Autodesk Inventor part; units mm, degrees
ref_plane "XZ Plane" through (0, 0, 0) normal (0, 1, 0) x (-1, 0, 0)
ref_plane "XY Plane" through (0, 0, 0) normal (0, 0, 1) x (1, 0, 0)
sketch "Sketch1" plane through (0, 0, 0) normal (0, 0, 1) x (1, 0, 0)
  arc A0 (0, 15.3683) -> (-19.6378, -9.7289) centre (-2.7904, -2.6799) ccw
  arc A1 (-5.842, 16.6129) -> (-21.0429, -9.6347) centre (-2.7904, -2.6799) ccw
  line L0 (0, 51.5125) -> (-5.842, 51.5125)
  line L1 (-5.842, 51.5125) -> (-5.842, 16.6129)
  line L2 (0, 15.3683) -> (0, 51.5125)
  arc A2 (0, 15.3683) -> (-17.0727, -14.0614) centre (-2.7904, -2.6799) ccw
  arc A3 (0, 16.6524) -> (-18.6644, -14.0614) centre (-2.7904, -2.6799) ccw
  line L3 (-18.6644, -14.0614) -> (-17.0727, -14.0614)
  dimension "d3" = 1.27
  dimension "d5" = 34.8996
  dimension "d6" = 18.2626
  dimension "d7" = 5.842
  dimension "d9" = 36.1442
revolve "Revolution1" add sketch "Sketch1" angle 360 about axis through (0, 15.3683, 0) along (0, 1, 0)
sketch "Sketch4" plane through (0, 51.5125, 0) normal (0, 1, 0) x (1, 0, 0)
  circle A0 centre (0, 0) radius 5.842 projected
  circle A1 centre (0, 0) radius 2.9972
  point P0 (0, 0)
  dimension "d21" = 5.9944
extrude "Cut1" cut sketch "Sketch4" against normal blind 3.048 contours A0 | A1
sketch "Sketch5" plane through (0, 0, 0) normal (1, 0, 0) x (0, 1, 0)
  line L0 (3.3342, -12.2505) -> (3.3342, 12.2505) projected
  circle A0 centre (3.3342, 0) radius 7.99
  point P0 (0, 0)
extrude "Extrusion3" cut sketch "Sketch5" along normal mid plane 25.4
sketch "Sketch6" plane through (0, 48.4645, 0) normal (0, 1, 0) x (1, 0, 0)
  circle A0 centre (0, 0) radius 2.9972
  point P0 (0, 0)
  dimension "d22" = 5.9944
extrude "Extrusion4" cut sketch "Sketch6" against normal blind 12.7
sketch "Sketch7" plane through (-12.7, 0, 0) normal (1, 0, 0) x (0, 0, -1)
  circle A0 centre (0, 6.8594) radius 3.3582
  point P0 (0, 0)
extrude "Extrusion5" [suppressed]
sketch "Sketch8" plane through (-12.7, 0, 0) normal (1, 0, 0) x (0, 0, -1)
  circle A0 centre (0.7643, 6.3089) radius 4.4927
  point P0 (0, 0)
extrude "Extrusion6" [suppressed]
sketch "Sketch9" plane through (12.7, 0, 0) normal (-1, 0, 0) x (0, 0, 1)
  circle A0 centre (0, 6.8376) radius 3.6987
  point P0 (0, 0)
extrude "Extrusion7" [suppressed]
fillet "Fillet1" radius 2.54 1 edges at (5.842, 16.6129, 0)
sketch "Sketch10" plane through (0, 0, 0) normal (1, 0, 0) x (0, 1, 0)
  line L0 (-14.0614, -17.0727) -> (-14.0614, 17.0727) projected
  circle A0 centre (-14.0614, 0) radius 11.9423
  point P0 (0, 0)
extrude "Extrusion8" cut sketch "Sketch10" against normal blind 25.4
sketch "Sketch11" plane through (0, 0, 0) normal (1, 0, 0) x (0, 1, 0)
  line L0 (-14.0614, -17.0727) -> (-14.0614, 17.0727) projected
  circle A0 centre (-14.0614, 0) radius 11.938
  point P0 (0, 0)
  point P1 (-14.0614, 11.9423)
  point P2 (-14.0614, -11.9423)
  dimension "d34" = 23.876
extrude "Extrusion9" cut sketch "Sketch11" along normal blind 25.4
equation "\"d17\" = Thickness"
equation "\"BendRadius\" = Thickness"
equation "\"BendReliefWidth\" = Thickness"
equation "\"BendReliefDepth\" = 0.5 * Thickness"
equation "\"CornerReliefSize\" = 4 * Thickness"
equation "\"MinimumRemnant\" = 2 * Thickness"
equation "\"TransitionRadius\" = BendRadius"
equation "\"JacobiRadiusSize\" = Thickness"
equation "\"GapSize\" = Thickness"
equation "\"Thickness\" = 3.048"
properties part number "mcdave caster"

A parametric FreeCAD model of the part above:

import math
import FreeCAD as App
import Part
import Sketcher

V = App.Vector
Q = App.Units.Quantity


def edges_at(feature, points):
    """Names of the edges that pass closest to the given points."""
    edges = feature.Shape.Edges
    near = lambda p: min(range(len(edges)), key=lambda i: edges[i].distToShape(Part.Vertex(*p))[0])
    return sorted({f"Edge{near(p) + 1}" for p in points})

doc = App.newDocument("Part")
body = doc.addObject("PartDesign::Body", "Body")

sketch1 = body.newObject("Sketcher::SketchObject", "Sketch")
sketch1.AttachmentSupport = (doc.getObject("XY_Plane"), [""])
sketch1.MapMode = "FlatFace"
sketch1.addGeometry(Part.ArcOfCircle(Part.Circle(V(-2.8, -2.7, 0), V(0, 0, 1), 18.3), math.radians(81), math.radians(203)), False)
sketch1.addGeometry(Part.LineSegment(V(0, 15.4, 0), V(0, 51.5, 0)), False)
sketch1.addGeometry(Part.LineSegment(V(0, 51.5, 0), V(-5.8, 51.5, 0)), False)
sketch1.addGeometry(Part.LineSegment(V(-5.8, 51.5, 0), V(-5.8, 16.6, 0)), False)
sketch1.addGeometry(Part.ArcOfCircle(Part.Circle(V(-2.8, -2.7, 0), V(0, 0, 1), 19.5), math.radians(99), math.radians(201)), False)
sketch1.addGeometry(Part.ArcOfCircle(Part.Circle(V(-2.8, -2.7, 0), V(0, 0, 1), 19.5), math.radians(-159.14), math.radians(-144.36)), False)
sketch1.addGeometry(Part.LineSegment(V(-18.7, -14.1, 0), V(-17.1, -14.1, 0)), False)
sketch1.addGeometry(Part.ArcOfCircle(Part.Circle(V(-2.8, -2.7, 0), V(0, 0, 1), 18.3), math.radians(-157.3), math.radians(-141.45)), False)
sketch1.addConstraint(Sketcher.Constraint("Coincident", 0, 1, 1, 1))
sketch1.addConstraint(Sketcher.Constraint("Coincident", 1, 2, 2, 1))
sketch1.addConstraint(Sketcher.Constraint("Coincident", 2, 2, 3, 1))
sketch1.addConstraint(Sketcher.Constraint("Coincident", 3, 2, 4, 1))
sketch1.addConstraint(Sketcher.Constraint("Tangent", 4, 2, 5, 1))
sketch1.addConstraint(Sketcher.Constraint("Coincident", 5, 2, 6, 1))
sketch1.addConstraint(Sketcher.Constraint("Coincident", 6, 2, 7, 2))
sketch1.addConstraint(Sketcher.Constraint("Tangent", 7, 1, 0, 2))
sketch1.addConstraint(Sketcher.Constraint("Vertical", 1))
sketch1.addConstraint(Sketcher.Constraint("Horizontal", 2))
sketch1.addConstraint(Sketcher.Constraint("Vertical", 3))
sketch1.addConstraint(Sketcher.Constraint("Horizontal", 6))
sketch1.addConstraint(Sketcher.Constraint("Coincident", 4, 3, 0, 3))
sketch1.addConstraint(Sketcher.Constraint("Equal", 4, 5))
sketch1.addConstraint(Sketcher.Constraint("Equal", 0, 7))
sketch1.addConstraint(Sketcher.Constraint("PointOnObject", 0, 1, -2))
sketch1.addConstraint(Sketcher.Constraint("Radius", 0, Q("0.719 in")))
sketch1.addConstraint(Sketcher.Constraint("DistanceX", 2, 2, 2, 1, Q("0.23 in")))
sketch1.addConstraint(Sketcher.Constraint("DistanceY", 1, 1, 1, 2, Q("1.423 in")))
sketch1.addConstraint(Sketcher.Constraint("DistanceY", 3, 2, 3, 1, Q("1.374 in")))
sketch1.addConstraint(Sketcher.Constraint("Radius", 4, Q("0.769 in")))
sketch1.addConstraint(Sketcher.Constraint("DistanceX", 7, 1, 6, 2, Q("0.101 in")))
sketch1.addConstraint(Sketcher.Constraint("DistanceX", 6, 1, 6, 2, 1.5917))
sketch1.addConstraint(Sketcher.Constraint("DistanceY", 0, 3, -1, 1, Q("0.1055 in")))
sketch1.addConstraint(Sketcher.Constraint("DistanceX", 4, 2, 0, 3, Q("0.7186 in")))
revolution = body.newObject("PartDesign::Revolution", "Revolution")
revolution.Profile = sketch1
revolution.ReferenceAxis = (sketch1, ["V_Axis"])
revolution.Angle = 360

sketch2 = body.newObject("Sketcher::SketchObject", "Sketch001")
sketch2.AttachmentSupport = (doc.getObject("XZ_Plane"), [""])
sketch2.MapMode = "FlatFace"
sketch2.AttachmentOffset = App.Placement(V(0, 0, -51.5125), App.Rotation())
sketch2.addGeometry(Part.Circle(V(0, 0, 0), V(0, 0, 1), 6), False)
sketch2.addConstraint(Sketcher.Constraint("Coincident", 0, 3, -1, 1))
sketch2.addConstraint(Sketcher.Constraint("Diameter", 0, Q("0.46 in")))
pocket1 = body.newObject("PartDesign::Pocket", "Pocket")
pocket1.Profile = sketch2
pocket1.Length = Q("0.12 in")
pocket1.Reversed = True

sketch3 = body.newObject("Sketcher::SketchObject", "Sketch002")
sketch3.AttachmentSupport = (doc.getObject("YZ_Plane"), [""])
sketch3.MapMode = "FlatFace"
sketch3.addGeometry(Part.Circle(V(3, 0, 0), V(0, 0, 1), 8), False)
sketch3.addConstraint(Sketcher.Constraint("PointOnObject", 0, 3, -1))
sketch3.addConstraint(Sketcher.Constraint("Diameter", 0, 15.98))
sketch3.addConstraint(Sketcher.Constraint("DistanceX", -1, 1, 0, 3, 3.3342))
pocket2 = body.newObject("PartDesign::Pocket", "Pocket001")
pocket2.Profile = sketch3
pocket2.Length = Q("1 in")
pocket2.Midplane = True

sketch4 = body.newObject("Sketcher::SketchObject", "Sketch003")
sketch4.AttachmentSupport = (doc.getObject("XZ_Plane"), [""])
sketch4.MapMode = "FlatFace"
sketch4.AttachmentOffset = App.Placement(V(0, 0, -48.4645), App.Rotation())
sketch4.addGeometry(Part.Circle(V(0, 0, 0), V(0, 0, 1), 3), False)
sketch4.addConstraint(Sketcher.Constraint("Coincident", 0, 3, -1, 1))
sketch4.addConstraint(Sketcher.Constraint("Diameter", 0, Q("0.236 in")))
pocket3 = body.newObject("PartDesign::Pocket", "Pocket002")
pocket3.Profile = sketch4
pocket3.Length = Q("0.5 in")
pocket3.Reversed = True
doc.recompute()

fillet = body.newObject("PartDesign::Fillet", "Fillet")
fillet.Base = (pocket3, edges_at(pocket3, [(5.842, 16.613, 0)]))
fillet.Radius = Q("0.1 in")

sketch5 = body.newObject("Sketcher::SketchObject", "Sketch004")
sketch5.AttachmentSupport = (doc.getObject("YZ_Plane"), [""])
sketch5.MapMode = "FlatFace"
sketch5.addGeometry(Part.Circle(V(-14, 0, 0), V(0, 0, 1), 12), False)
sketch5.addConstraint(Sketcher.Constraint("PointOnObject", 0, 3, -1))
sketch5.addConstraint(Sketcher.Constraint("Diameter", 0, 23.8846))
sketch5.addConstraint(Sketcher.Constraint("DistanceX", 0, 3, -1, 1, Q("0.5536 in")))
pocket4 = body.newObject("PartDesign::Pocket", "Pocket003")
pocket4.Profile = sketch5
pocket4.Length = Q("1 in")

sketch6 = body.newObject("Sketcher::SketchObject", "Sketch005")
sketch6.AttachmentSupport = (doc.getObject("YZ_Plane"), [""])
sketch6.MapMode = "FlatFace"
sketch6.addGeometry(Part.Circle(V(-14, 0, 0), V(0, 0, 1), 12), False)
sketch6.addConstraint(Sketcher.Constraint("PointOnObject", 0, 3, -1))
sketch6.addConstraint(Sketcher.Constraint("Diameter", 0, Q("0.94 in")))
sketch6.addConstraint(Sketcher.Constraint("DistanceX", 0, 3, -1, 1, Q("0.5536 in")))
pocket5 = body.newObject("PartDesign::Pocket", "Pocket004")
pocket5.Profile = sketch6
pocket5.Length = Q("1 in")
pocket5.Reversed = True

doc.recompute()
